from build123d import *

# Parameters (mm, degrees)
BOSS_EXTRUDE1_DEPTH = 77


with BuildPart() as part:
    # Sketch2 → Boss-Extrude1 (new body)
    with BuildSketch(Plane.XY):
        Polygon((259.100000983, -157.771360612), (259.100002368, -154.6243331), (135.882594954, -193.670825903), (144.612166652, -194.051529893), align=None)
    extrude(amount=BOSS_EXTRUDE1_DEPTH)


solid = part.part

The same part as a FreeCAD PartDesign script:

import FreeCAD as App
import Part
import Sketcher

V = App.Vector

doc = App.newDocument("Part")
body = doc.addObject("PartDesign::Body", "Body")

sketch1 = body.newObject("Sketcher::SketchObject", "Sketch")
sketch1.AttachmentSupport = (doc.getObject("XY_Plane"), [""])
sketch1.MapMode = "FlatFace"
sketch1.addGeometry([
    Part.LineSegment(V(259.1, -157.8, 0), V(259.1, -154.6, 0)),
    Part.LineSegment(V(259.1, -154.6, 0), V(135.9, -193.7, 0)),
    Part.LineSegment(V(135.9, -193.7, 0), V(144.6, -194.1, 0)),
    Part.LineSegment(V(144.6, -194.1, 0), V(259.1, -157.8, 0)),
], False)
sketch1.addConstraint([
    Sketcher.Constraint("Coincident", 0, 2, 1, 1),
    Sketcher.Constraint("Coincident", 1, 2, 2, 1),
    Sketcher.Constraint("Coincident", 2, 2, 3, 1),
    Sketcher.Constraint("Coincident", 3, 2, 0, 1),
    Sketcher.Constraint("Vertical", 0),
    Sketcher.Constraint("Parallel", 1, 3),
    Sketcher.Constraint("DistanceX", -1, 1, 3, 2, 259.100001),
    Sketcher.Constraint("Distance", 2, 8.737869),
    Sketcher.Constraint("Distance", 3, 120.098771),
    Sketcher.Constraint("DistanceY", 0, 1, 0, 2, 3.147028),
    Sketcher.Constraint("DistanceY", 2, 2, -1, 1, 194.05153),
    Sketcher.Constraint("DistanceY", 3, 2, -1, 1, 157.771361),
])
pad1 = body.newObject("PartDesign::Pad", "Pad")
pad1.Profile = sketch1
pad1.Length = 77

doc.recompute()
